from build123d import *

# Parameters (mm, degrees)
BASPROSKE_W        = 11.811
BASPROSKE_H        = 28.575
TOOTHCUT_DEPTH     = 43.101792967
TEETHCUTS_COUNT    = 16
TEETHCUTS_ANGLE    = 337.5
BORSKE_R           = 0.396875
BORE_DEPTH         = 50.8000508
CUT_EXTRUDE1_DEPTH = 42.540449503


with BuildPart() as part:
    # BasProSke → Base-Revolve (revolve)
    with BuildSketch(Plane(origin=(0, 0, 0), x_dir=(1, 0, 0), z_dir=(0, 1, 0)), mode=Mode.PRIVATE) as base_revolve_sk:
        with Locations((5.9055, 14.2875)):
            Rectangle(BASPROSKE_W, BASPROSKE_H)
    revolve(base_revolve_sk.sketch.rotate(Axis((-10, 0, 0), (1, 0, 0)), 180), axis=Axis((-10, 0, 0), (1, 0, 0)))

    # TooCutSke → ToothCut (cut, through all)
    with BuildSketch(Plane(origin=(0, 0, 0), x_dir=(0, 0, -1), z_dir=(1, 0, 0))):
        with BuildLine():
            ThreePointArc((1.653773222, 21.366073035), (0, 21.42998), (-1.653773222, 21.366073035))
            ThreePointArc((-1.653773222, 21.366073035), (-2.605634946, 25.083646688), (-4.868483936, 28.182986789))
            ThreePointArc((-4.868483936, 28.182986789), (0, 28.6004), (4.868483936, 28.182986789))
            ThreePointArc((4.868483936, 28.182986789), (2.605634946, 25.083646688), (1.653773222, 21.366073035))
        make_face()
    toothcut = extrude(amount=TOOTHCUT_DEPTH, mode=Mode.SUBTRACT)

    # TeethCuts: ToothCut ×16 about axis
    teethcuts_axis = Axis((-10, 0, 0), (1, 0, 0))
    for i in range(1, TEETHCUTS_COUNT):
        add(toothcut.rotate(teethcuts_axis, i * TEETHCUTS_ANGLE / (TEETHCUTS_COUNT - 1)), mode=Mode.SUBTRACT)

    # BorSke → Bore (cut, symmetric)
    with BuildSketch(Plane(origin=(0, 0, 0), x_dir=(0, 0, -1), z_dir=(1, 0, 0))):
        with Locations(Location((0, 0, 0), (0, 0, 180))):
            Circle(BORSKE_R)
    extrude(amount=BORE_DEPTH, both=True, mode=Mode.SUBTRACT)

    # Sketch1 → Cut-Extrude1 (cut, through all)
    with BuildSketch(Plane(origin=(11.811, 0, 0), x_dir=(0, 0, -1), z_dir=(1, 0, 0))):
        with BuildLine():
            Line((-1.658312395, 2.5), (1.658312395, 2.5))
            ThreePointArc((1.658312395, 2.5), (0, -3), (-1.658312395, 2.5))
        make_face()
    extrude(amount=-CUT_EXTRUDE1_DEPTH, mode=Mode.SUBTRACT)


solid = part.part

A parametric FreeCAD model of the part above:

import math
import FreeCAD as App
import Part
import Sketcher
from FreeCAD import Vector
Q = App.Units.Quantity


def add_polygon(sketch, points):
    """Adds a closed chain of lines whose ends are joined by coincident constraints."""
    first, n = sketch.GeometryCount, len(points)
    for a, b in zip(points, points[1:] + points[:1]):
        sketch.addGeometry(Part.LineSegment(App.Vector(*a, 0), App.Vector(*b, 0)), False)
    for i in range(n):
        sketch.addConstraint(Sketcher.Constraint("Coincident", first + i, 2, first + (i + 1) % n, 1))

doc = App.newDocument("Part")
body = doc.addObject("PartDesign::Body", "Body")

# Sketch on XZ plane
sketch1 = body.newObject("Sketcher::SketchObject", "Sketch")
sketch1.AttachmentSupport = (doc.getObject("XZ_Plane"), [""])
sketch1.MapMode = "FlatFace"
add_polygon(sketch1, [(0, -28.575), (0, 0), (11.811, 0), (11.811, -28.575)])  # lines 0-3
sketch1.addConstraint(Sketcher.Constraint("Vertical", 0))
sketch1.addConstraint(Sketcher.Constraint("Horizontal", 1))
sketch1.addConstraint(Sketcher.Constraint("Vertical", 2))
sketch1.addConstraint(Sketcher.Constraint("Horizontal", 3))
sketch1.addConstraint(Sketcher.Constraint("Coincident", 0, 2, -1, 1))
sketch1.addConstraint(Sketcher.Constraint("DistanceX", 1, 1, 1, 2, Q("0.465 in")))
sketch1.addConstraint(Sketcher.Constraint("DistanceY", 0, 1, 0, 2, Q("1.125 in")))
revolution = body.newObject("PartDesign::Revolution", "Revolution")
revolution.Profile = sketch1
revolution.ReferenceAxis = (sketch1, ["H_Axis"])
revolution.Angle = 360

# Sketch on YZ plane
sketch2 = body.newObject("Sketcher::SketchObject", "Sketch001")
sketch2.AttachmentSupport = (doc.getObject("YZ_Plane"), [""])
sketch2.MapMode = "FlatFace"
sketch2.addGeometry(Part.ArcOfCircle(Part.Circle(Vector(0, 0, 0), Vector(0, 0, 1), 21.42998), math.radians(-4.425974), math.radians(4.425974)), False)
sketch2.addGeometry(Part.ArcOfCircle(Part.Circle(Vector(20.750099, -11.795084, 0), Vector(0, 0, 1), 10.16), math.radians(42.980698), math.radians(86.524178)), False)
sketch2.addGeometry(Part.ArcOfCircle(Part.Circle(Vector(0, 0, 0), Vector(0, 0, 1), 28.6004), math.radians(-9.800862), math.radians(9.800862)), False)
sketch2.addGeometry(Part.ArcOfCircle(Part.Circle(Vector(20.750099, 11.795084, 0), Vector(0, 0, 1), 10.16), math.radians(-86.524178), math.radians(-42.980698)), False)
sketch2.addConstraint(Sketcher.Constraint("Coincident", 0, 1, 1, 2))
sketch2.addConstraint(Sketcher.Constraint("Coincident", 1, 1, 2, 1))
sketch2.addConstraint(Sketcher.Constraint("Coincident", 2, 2, 3, 2))
sketch2.addConstraint(Sketcher.Constraint("Coincident", 3, 1, 0, 2))
sketch2.addConstraint(Sketcher.Constraint("Coincident", 0, 3, -1, 1))
sketch2.addConstraint(Sketcher.Constraint("Coincident", 2, 3, -1, 1))
sketch2.addConstraint(Sketcher.Constraint("Equal", 1, 3))
sketch2.addConstraint(Sketcher.Constraint("Symmetric", 1, 3, 3, 3, -1))
sketch2.addConstraint(Sketcher.Constraint("Radius", 1, Q("0.4 in")))
sketch2.addConstraint(Sketcher.Constraint("Radius", 2, Q("1.126 in")))
sketch2.addConstraint(Sketcher.Constraint("Radius", 0, Q("0.8437 in")))
sketch2.addConstraint(Sketcher.Constraint("DistanceX", -1, 1, 1, 3, 20.750099))
sketch2.addConstraint(Sketcher.Constraint("DistanceY", 1, 3, 1, 1, 6.9266))
pocket1 = body.newObject("PartDesign::Pocket", "Pocket")
pocket1.Profile = sketch2
pocket1.Type = "ThroughAll"
pocket1.Reversed = True
doc.recompute()

polarpattern = body.newObject("PartDesign::PolarPattern", "PolarPattern")
polarpattern.Originals = [pocket1]
polarpattern.Axis = (doc.getObject("X_Axis"), [""])
polarpattern.Angle = 360
polarpattern.Occurrences = 16
body.Tip = polarpattern

# Sketch on YZ plane
sketch3 = body.newObject("Sketcher::SketchObject", "Sketch002")
sketch3.AttachmentSupport = (doc.getObject("YZ_Plane"), [""])
sketch3.MapMode = "FlatFace"
sketch3.addGeometry(Part.Circle(Vector(0, 0, 0), Vector(0, 0, 1), 0.396875), False)
sketch3.addConstraint(Sketcher.Constraint("Coincident", 0, 3, -1, 1))
sketch3.addConstraint(Sketcher.Constraint("Diameter", 0, Q("0.03125 in")))
pocket2 = body.newObject("PartDesign::Pocket", "Pocket001")
pocket2.Profile = sketch3
pocket2.Length = 101.600102
pocket2.Midplane = True

# Sketch on YZ plane
sketch4 = body.newObject("Sketcher::SketchObject", "Sketch003")
sketch4.AttachmentSupport = (doc.getObject("YZ_Plane"), [""])
sketch4.MapMode = "FlatFace"
sketch4.AttachmentOffset = App.Placement(Vector(0, 0, 0.465 * 25.4), App.Rotation())
sketch4.addGeometry(Part.LineSegment(Vector(2.5, -1.658312, 0), Vector(2.5, 1.658312, 0)), False)
sketch4.addGeometry(Part.ArcOfCircle(Part.Circle(Vector(0, 0, 0), Vector(0, 0, 1), 3), math.radians(33.55731), math.radians(326.44269)), False)
sketch4.addConstraint(Sketcher.Constraint("Coincident", 0, 1, 1, 2))
sketch4.addConstraint(Sketcher.Constraint("Coincident", 1, 1, 0, 2))
sketch4.addConstraint(Sketcher.Constraint("Vertical", 0))
sketch4.addConstraint(Sketcher.Constraint("Coincident", 1, 3, -1, 1))
sketch4.addConstraint(Sketcher.Constraint("Radius", 1, 3.0))
sketch4.addConstraint(Sketcher.Constraint("DistanceX", -1, 1, 0, 1, 2.5))
pocket3 = body.newObject("PartDesign::Pocket", "Pocket002")
pocket3.Profile = sketch4
pocket3.Type = "ThroughAll"

doc.recompute()
